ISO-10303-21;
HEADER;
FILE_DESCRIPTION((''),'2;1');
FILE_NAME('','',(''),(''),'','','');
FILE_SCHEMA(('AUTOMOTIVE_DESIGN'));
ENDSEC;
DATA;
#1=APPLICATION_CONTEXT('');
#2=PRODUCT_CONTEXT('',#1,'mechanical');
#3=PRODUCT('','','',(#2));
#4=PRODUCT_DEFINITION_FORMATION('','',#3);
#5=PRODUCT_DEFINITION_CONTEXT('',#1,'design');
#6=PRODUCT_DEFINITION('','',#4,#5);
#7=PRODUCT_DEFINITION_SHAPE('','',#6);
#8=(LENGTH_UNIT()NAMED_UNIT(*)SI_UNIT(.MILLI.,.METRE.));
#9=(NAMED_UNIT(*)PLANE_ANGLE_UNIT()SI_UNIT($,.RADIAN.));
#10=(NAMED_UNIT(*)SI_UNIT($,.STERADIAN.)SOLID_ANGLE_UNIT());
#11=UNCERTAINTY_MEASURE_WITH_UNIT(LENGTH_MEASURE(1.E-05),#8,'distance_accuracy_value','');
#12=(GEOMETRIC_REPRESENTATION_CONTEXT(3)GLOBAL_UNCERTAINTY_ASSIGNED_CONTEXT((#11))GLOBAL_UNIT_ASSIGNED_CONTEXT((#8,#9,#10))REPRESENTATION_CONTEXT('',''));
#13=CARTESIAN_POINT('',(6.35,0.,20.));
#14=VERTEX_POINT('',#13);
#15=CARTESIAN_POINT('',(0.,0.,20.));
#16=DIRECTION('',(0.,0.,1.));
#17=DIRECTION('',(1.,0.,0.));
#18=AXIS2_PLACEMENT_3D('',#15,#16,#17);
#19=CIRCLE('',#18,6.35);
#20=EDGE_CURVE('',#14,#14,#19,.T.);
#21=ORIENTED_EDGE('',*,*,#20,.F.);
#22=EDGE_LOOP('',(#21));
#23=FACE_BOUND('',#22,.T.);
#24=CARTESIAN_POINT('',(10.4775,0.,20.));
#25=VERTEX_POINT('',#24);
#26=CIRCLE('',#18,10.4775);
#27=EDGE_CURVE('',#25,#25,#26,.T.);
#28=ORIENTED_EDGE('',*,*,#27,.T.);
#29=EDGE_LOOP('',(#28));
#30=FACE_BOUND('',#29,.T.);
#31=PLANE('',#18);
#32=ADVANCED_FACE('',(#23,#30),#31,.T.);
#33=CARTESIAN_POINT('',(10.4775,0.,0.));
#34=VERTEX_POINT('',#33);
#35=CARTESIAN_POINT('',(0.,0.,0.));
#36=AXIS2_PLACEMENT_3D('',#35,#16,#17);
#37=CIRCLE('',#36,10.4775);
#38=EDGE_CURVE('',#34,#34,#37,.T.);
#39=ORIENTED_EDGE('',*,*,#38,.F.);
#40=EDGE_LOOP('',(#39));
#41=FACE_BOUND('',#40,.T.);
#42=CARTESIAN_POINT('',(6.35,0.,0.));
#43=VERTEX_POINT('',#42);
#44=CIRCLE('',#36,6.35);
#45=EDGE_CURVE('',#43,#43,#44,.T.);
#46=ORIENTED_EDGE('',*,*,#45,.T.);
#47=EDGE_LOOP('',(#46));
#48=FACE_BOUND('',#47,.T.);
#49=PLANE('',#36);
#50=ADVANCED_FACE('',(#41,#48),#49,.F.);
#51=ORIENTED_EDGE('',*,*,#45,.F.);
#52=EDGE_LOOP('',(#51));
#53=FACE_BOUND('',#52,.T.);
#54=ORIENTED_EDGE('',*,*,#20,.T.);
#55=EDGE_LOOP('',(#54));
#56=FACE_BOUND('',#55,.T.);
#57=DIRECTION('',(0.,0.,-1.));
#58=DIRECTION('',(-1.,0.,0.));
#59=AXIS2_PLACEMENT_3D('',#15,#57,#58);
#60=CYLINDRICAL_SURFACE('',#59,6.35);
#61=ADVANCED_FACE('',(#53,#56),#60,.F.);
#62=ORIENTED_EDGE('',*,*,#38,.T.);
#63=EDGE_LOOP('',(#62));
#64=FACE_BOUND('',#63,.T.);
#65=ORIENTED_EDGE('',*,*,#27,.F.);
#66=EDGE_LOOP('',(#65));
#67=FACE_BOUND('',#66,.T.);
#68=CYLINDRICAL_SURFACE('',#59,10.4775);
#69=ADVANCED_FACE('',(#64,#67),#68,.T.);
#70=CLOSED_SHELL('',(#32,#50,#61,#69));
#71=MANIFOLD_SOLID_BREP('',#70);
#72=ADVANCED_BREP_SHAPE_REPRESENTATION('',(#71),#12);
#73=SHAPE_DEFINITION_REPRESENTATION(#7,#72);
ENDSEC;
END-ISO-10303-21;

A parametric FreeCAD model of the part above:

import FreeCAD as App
import Part
import Sketcher

V = App.Vector
Q = App.Units.Quantity

doc = App.newDocument("Part")
body = doc.addObject("PartDesign::Body", "Body")

sketch1 = doc.addObject("Sketcher::SketchObject", "Sketch")
body.addObject(sketch1)
sketch1.AttachmentSupport = (doc.XY_Plane, [""])
sketch1.MapMode = "FlatFace"
sketch1.addGeometry([
    Part.Circle(V(0, 0, 0), V(0, 0, 1), 10.4775),
    Part.Circle(V(0, 0, 0), V(0, 0, 1), 6.35),
], False)
sketch1.addConstraint([
    Sketcher.Constraint("Coincident", 0, 3, -1, 1),
    Sketcher.Constraint("Coincident", 1, 3, -1, 1),
    Sketcher.Constraint("Diameter", 1, Q("0.5 in")),
    Sketcher.Constraint("Diameter", 0, Q("0.825 in")),
])
pad1 = doc.addObject("PartDesign::Pad", "Pad")
body.addObject(pad1)
pad1.Profile = sketch1
pad1.Length = 20

doc.recompute()
